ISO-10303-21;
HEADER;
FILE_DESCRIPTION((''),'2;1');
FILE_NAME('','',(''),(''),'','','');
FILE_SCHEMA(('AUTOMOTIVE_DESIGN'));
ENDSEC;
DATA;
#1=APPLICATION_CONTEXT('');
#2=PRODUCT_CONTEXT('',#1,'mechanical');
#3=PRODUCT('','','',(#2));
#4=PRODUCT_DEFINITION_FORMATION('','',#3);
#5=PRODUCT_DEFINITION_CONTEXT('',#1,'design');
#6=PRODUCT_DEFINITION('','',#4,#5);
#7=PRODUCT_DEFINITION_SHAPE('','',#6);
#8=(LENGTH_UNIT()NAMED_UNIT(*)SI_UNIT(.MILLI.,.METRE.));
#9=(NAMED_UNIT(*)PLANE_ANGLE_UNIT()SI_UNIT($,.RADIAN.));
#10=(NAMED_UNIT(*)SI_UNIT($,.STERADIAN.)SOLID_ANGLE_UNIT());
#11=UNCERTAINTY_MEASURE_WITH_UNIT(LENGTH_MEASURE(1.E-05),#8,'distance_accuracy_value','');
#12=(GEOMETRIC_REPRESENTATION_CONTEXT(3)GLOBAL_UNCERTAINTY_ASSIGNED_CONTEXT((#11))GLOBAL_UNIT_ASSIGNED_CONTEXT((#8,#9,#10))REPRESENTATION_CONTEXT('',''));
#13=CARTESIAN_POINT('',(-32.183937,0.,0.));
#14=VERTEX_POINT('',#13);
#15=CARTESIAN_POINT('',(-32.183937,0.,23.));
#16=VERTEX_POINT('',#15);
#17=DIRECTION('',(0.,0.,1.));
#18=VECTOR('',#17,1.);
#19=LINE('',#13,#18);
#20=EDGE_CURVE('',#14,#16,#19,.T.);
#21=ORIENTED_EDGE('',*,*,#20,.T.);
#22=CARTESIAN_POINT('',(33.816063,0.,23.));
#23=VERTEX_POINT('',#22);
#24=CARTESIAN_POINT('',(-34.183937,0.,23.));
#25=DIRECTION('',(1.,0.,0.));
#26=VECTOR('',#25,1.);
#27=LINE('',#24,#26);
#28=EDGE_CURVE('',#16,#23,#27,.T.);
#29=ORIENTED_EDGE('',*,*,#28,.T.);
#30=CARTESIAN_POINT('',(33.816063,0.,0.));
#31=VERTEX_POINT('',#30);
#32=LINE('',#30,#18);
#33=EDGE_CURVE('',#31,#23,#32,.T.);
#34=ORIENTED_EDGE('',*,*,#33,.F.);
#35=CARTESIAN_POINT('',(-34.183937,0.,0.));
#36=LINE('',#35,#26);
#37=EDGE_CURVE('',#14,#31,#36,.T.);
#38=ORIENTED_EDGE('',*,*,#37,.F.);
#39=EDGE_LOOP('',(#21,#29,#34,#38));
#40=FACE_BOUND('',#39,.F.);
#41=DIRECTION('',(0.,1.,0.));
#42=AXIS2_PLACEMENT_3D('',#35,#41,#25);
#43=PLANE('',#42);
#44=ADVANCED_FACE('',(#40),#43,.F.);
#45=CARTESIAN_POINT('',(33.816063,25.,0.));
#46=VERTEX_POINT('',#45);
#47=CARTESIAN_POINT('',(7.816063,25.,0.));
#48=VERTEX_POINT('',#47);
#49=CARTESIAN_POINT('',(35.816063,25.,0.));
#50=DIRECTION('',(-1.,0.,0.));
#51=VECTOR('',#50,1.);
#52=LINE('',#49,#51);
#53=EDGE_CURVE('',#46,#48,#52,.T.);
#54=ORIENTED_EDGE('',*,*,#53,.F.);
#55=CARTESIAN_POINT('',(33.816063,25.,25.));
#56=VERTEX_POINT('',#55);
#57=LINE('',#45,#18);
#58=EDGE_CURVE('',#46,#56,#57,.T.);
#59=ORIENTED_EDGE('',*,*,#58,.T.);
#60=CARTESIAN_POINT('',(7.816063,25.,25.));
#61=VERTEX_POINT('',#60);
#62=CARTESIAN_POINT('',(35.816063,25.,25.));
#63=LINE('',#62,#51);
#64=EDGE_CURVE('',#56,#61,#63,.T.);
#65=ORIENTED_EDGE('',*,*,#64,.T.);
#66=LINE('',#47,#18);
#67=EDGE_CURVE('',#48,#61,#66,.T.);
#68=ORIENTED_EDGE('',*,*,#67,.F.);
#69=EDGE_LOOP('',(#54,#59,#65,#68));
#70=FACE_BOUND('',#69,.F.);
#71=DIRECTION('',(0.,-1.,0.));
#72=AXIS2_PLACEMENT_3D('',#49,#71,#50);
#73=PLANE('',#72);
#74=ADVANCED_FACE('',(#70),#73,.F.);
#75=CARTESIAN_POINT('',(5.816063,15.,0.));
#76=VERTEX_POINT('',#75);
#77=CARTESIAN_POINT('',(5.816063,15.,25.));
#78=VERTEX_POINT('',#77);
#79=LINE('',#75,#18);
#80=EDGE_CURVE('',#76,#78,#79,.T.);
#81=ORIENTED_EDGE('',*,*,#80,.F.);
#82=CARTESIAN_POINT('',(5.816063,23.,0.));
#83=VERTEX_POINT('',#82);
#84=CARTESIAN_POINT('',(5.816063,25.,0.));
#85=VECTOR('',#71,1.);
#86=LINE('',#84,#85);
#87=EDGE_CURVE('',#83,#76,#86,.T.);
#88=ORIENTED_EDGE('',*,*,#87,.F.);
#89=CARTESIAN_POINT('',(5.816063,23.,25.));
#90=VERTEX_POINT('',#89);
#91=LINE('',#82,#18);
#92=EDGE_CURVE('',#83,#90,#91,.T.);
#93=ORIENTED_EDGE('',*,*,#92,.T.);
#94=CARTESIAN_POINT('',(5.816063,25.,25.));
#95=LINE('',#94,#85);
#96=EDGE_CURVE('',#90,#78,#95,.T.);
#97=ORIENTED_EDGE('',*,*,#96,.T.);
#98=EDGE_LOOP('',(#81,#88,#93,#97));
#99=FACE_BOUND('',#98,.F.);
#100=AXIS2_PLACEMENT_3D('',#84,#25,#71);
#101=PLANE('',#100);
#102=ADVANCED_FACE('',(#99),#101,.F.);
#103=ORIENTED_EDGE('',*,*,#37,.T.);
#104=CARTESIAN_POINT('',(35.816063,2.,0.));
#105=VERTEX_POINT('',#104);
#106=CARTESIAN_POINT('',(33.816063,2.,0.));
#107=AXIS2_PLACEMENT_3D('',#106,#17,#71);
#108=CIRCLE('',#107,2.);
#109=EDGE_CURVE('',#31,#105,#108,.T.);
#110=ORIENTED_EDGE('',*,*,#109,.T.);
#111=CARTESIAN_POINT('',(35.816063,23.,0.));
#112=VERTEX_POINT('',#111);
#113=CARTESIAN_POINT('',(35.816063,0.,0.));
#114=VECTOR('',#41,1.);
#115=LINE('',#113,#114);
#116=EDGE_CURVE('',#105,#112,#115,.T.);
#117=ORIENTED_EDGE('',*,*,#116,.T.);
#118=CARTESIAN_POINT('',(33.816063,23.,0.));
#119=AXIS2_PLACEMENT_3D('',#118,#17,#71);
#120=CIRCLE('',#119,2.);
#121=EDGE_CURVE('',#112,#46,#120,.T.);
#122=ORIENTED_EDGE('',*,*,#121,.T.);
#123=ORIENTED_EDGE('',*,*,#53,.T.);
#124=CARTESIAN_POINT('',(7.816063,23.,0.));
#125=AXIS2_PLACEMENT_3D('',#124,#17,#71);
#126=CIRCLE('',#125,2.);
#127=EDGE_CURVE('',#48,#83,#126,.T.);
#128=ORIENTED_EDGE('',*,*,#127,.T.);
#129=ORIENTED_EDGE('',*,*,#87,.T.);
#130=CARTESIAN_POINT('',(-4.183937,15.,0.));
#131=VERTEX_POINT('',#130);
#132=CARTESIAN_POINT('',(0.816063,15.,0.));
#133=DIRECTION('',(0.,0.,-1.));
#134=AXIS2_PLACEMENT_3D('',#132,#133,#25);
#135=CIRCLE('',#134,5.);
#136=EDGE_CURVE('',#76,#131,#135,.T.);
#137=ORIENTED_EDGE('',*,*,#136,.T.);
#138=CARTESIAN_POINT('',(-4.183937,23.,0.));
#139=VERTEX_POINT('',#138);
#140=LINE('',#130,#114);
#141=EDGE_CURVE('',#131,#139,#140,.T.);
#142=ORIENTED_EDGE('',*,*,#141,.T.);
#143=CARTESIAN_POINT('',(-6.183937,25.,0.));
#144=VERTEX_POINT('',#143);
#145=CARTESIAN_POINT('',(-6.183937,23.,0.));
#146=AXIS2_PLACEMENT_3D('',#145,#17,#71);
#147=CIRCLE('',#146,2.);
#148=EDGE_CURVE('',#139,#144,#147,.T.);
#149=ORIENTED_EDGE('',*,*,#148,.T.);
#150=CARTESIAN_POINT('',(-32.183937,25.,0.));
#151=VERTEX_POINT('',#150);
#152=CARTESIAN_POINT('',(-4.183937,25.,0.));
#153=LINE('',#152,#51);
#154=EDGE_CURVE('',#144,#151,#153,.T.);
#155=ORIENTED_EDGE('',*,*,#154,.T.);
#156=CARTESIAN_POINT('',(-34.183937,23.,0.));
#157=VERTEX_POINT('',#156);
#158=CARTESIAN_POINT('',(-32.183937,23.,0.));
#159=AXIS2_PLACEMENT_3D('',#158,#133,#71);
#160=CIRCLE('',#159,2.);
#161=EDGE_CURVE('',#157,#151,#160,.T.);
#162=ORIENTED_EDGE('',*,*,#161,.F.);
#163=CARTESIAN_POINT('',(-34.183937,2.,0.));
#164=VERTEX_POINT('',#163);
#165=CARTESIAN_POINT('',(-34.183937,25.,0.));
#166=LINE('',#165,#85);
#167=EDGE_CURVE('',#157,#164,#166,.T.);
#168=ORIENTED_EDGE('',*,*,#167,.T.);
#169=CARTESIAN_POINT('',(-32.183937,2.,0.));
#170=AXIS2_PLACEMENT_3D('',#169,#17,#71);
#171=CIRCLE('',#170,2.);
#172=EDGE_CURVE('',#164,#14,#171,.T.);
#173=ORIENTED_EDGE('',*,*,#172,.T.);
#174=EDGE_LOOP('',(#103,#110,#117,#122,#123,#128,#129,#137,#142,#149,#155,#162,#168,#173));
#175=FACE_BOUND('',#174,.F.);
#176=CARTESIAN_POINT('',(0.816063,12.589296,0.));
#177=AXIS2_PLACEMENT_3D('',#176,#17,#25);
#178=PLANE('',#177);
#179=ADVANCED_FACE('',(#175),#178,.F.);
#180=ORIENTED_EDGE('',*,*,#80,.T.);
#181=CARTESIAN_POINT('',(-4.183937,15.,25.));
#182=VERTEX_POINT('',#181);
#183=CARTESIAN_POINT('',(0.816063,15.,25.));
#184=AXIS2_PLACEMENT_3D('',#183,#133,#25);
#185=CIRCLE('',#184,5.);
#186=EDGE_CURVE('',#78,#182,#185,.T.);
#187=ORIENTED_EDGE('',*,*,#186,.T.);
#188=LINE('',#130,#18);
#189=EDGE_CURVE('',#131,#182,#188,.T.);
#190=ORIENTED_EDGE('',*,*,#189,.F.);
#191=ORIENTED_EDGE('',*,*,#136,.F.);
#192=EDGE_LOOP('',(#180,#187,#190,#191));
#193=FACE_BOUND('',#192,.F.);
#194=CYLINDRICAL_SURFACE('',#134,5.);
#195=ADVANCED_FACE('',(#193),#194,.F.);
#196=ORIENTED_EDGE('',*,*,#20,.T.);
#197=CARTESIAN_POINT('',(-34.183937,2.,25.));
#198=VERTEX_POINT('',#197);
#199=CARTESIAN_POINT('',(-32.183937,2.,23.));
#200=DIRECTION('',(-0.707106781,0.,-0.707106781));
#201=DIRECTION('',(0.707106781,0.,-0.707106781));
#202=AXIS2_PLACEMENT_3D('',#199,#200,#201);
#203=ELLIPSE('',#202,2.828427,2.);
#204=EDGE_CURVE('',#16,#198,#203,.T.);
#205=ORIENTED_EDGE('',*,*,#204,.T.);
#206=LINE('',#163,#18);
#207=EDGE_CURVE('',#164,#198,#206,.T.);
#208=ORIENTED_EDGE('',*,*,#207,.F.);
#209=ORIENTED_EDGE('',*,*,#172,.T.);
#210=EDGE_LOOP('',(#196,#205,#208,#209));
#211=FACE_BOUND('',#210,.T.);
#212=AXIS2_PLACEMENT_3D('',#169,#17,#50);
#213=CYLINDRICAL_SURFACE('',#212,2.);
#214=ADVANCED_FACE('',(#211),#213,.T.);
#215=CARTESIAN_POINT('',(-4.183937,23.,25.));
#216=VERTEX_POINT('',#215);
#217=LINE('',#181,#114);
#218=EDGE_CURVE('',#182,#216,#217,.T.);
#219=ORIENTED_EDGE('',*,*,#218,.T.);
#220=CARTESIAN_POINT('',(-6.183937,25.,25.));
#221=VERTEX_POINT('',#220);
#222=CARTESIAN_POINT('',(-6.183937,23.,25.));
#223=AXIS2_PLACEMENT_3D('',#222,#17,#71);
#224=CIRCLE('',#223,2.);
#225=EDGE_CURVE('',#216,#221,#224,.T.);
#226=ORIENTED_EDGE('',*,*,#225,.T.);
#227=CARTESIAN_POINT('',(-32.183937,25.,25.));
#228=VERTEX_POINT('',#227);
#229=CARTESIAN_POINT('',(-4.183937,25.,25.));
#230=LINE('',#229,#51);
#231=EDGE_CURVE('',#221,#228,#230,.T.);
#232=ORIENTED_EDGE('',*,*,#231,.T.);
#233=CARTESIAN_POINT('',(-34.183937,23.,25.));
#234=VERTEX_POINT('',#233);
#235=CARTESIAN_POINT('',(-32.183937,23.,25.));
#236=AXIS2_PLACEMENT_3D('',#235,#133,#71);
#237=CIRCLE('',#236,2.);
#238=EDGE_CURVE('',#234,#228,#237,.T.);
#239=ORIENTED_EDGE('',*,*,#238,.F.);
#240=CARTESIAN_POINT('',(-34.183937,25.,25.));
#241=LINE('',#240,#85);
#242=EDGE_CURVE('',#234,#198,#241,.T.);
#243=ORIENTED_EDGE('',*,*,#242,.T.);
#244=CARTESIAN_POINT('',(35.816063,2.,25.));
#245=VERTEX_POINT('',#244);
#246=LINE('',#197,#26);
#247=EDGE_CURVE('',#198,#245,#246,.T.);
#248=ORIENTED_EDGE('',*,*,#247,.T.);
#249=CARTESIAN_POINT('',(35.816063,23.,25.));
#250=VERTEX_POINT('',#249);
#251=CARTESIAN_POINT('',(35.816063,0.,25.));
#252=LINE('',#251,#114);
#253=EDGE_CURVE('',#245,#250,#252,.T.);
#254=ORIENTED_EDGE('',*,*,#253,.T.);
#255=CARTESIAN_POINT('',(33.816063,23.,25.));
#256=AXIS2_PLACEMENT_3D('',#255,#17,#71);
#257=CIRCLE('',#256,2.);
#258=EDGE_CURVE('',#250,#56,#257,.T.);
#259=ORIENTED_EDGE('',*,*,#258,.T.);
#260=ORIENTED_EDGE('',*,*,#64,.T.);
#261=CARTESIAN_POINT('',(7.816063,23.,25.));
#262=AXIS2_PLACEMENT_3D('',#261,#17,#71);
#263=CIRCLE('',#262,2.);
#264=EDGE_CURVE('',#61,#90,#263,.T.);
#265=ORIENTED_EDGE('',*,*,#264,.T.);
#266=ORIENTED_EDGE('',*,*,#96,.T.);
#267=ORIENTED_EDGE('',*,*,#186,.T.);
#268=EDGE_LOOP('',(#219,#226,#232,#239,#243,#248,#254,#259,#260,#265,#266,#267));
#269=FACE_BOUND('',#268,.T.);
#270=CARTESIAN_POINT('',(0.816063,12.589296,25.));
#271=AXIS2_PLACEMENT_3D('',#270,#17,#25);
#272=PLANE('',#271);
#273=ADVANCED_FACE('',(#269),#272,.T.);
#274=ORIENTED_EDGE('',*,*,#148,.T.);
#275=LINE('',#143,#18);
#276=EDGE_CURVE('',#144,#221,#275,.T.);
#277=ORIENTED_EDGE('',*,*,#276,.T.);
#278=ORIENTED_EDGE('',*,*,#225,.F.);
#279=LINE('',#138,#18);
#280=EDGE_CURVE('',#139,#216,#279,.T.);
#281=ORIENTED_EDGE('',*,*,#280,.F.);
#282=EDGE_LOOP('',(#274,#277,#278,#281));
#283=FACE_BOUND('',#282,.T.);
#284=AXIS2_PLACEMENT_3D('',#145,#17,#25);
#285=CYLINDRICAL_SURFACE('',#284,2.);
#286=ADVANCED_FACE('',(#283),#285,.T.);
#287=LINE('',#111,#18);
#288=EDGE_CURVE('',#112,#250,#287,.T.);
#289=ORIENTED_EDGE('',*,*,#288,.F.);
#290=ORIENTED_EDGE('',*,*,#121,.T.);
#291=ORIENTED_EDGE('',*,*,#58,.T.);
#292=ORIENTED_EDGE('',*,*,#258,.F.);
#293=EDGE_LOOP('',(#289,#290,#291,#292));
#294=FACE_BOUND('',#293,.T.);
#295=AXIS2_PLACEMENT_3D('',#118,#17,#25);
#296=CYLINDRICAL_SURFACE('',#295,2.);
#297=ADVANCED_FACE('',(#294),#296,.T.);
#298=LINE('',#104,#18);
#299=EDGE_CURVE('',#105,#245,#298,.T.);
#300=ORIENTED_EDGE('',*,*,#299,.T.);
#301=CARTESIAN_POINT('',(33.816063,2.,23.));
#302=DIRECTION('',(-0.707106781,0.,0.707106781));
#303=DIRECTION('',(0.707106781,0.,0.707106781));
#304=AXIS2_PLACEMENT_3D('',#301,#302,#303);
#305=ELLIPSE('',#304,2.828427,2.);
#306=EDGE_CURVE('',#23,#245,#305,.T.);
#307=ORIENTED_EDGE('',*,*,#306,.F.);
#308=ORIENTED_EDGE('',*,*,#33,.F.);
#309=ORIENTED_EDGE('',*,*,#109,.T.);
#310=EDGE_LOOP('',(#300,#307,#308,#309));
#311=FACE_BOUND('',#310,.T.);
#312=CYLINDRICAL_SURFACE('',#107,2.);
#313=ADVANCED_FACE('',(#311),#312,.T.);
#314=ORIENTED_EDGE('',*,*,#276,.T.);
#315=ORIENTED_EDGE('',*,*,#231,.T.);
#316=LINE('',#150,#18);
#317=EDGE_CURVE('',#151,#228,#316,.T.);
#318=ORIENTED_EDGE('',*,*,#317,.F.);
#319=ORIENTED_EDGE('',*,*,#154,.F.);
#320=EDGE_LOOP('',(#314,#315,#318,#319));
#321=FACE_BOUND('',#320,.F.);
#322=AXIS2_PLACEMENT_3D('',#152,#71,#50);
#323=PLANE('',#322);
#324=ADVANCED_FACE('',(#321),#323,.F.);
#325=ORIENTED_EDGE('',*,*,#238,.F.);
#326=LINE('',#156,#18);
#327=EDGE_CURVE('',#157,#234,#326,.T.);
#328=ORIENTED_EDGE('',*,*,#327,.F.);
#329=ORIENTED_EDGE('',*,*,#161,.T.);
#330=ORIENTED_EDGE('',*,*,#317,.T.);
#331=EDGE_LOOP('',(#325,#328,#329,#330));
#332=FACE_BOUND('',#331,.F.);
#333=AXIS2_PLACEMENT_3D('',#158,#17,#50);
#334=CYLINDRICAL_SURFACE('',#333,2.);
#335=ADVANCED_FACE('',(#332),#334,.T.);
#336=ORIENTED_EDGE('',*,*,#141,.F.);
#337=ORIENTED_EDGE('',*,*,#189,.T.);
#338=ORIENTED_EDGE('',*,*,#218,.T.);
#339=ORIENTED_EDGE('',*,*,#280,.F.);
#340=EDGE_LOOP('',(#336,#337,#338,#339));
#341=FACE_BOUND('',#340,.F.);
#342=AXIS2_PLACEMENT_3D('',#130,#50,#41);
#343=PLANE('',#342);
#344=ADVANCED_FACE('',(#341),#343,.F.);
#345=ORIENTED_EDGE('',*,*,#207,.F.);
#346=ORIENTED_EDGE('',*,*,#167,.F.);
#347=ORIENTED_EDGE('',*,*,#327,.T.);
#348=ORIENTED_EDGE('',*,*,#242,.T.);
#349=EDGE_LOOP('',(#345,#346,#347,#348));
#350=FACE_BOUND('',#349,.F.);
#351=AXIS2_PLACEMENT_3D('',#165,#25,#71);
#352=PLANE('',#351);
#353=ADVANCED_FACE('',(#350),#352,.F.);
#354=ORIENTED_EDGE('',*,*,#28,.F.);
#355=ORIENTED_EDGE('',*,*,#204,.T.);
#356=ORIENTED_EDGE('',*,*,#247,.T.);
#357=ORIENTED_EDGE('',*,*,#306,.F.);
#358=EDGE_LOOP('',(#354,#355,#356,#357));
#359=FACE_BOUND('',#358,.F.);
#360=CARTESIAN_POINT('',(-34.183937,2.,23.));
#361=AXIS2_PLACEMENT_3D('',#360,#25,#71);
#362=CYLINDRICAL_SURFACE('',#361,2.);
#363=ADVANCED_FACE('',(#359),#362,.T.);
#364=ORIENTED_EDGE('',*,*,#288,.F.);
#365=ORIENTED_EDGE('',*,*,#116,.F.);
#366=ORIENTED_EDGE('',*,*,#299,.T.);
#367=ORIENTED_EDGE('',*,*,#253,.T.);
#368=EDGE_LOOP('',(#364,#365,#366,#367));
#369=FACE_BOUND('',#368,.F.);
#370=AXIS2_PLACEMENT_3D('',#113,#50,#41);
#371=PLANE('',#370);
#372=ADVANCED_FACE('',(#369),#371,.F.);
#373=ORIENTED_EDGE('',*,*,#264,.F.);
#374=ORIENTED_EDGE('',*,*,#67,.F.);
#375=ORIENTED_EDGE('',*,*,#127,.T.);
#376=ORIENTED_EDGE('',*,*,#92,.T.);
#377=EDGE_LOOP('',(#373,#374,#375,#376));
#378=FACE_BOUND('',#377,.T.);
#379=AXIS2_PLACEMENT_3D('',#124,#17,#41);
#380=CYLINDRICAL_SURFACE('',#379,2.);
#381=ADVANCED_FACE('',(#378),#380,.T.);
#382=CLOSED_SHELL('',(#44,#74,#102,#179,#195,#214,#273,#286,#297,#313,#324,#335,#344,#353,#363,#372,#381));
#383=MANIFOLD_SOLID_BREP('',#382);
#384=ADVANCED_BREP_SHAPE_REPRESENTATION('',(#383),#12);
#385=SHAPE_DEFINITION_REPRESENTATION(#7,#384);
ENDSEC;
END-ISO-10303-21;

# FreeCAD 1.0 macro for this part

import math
import FreeCAD as App
import Part
import Sketcher
from FreeCAD import Vector


def edges_at(feature, points):
    """Names of the edges that pass closest to the given points."""
    edges = feature.Shape.Edges
    near = lambda p: min(range(len(edges)), key=lambda i: edges[i].distToShape(Part.Vertex(*p))[0])
    return sorted({f"Edge{near(p) + 1}" for p in points})

doc = App.newDocument("Part")
body = doc.addObject("PartDesign::Body", "Body")

sketch1 = body.newObject("Sketcher::SketchObject", "Sketch")
sketch1.AttachmentSupport = (doc.getObject("XY_Plane"), [""])
sketch1.MapMode = "FlatFace"
sketch1.addGeometry(Part.LineSegment(Vector(-34, 25, 0), Vector(-34, 0, 0)), False)
sketch1.addGeometry(Part.LineSegment(Vector(-34, 0, 0), Vector(36, 0, 0)), False)
sketch1.addGeometry(Part.LineSegment(Vector(36, 0, 0), Vector(36, 25, 0)), False)
sketch1.addGeometry(Part.LineSegment(Vector(36, 25, 0), Vector(6, 25, 0)), False)
sketch1.addGeometry(Part.LineSegment(Vector(6, 25, 0), Vector(6, 15, 0)), False)
sketch1.addGeometry(Part.ArcOfCircle(Part.Circle(Vector(1, 15, 0), Vector(0, 0, 1), 5), math.radians(180), math.radians(360)), False)
sketch1.addGeometry(Part.LineSegment(Vector(-4, 15, 0), Vector(-4, 25, 0)), False)
sketch1.addGeometry(Part.LineSegment(Vector(-4, 25, 0), Vector(-34, 25, 0)), False)
sketch1.addConstraint(Sketcher.Constraint("Coincident", 0, 2, 1, 1))
sketch1.addConstraint(Sketcher.Constraint("Coincident", 1, 2, 2, 1))
sketch1.addConstraint(Sketcher.Constraint("Coincident", 2, 2, 3, 1))
sketch1.addConstraint(Sketcher.Constraint("Coincident", 3, 2, 4, 1))
sketch1.addConstraint(Sketcher.Constraint("Tangent", 4, 2, 5, 2))
sketch1.addConstraint(Sketcher.Constraint("Tangent", 5, 1, 6, 1))
sketch1.addConstraint(Sketcher.Constraint("Coincident", 6, 2, 7, 1))
sketch1.addConstraint(Sketcher.Constraint("Coincident", 7, 2, 0, 1))
sketch1.addConstraint(Sketcher.Constraint("Vertical", 0))
sketch1.addConstraint(Sketcher.Constraint("Horizontal", 1))
sketch1.addConstraint(Sketcher.Constraint("Vertical", 2))
sketch1.addConstraint(Sketcher.Constraint("Horizontal", 3))
sketch1.addConstraint(Sketcher.Constraint("Vertical", 4))
sketch1.addConstraint(Sketcher.Constraint("Vertical", 6))
sketch1.addConstraint(Sketcher.Constraint("Horizontal", 7))
sketch1.addConstraint(Sketcher.Constraint("PointOnObject", 0, 2, -1))
sketch1.addConstraint(Sketcher.Constraint("Horizontal", 3, 2, 6, 2))
sketch1.addConstraint(Sketcher.Constraint("Equal", 3, 7))
sketch1.addConstraint(Sketcher.Constraint("Radius", 5, 5.0))
sketch1.addConstraint(Sketcher.Constraint("DistanceX", 1, 1, 1, 2, 70.0))
sketch1.addConstraint(Sketcher.Constraint("DistanceY", 0, 2, 0, 1, 25.0))
sketch1.addConstraint(Sketcher.Constraint("DistanceY", 4, 2, 4, 1, 10.0))
sketch1.addConstraint(Sketcher.Constraint("DistanceX", -1, 1, 5, 3, 0.816063))
pad1 = body.newObject("PartDesign::Pad", "Pad")
pad1.Profile = sketch1
pad1.Length = 25
doc.recompute()

fillet = body.newObject("PartDesign::Fillet", "Fillet")
fillet.Base = (pad1, edges_at(pad1, [
    (0.816, 0, 25),
    (-34.184, 0, 12.5),
    (35.816, 0, 12.5),
    (35.816, 25, 12.5),
    (5.816, 25, 12.5),
    (-4.184, 25, 12.5),
    (-34.184, 25, 12.5),
]))
fillet.Radius = 2

doc.recompute()
